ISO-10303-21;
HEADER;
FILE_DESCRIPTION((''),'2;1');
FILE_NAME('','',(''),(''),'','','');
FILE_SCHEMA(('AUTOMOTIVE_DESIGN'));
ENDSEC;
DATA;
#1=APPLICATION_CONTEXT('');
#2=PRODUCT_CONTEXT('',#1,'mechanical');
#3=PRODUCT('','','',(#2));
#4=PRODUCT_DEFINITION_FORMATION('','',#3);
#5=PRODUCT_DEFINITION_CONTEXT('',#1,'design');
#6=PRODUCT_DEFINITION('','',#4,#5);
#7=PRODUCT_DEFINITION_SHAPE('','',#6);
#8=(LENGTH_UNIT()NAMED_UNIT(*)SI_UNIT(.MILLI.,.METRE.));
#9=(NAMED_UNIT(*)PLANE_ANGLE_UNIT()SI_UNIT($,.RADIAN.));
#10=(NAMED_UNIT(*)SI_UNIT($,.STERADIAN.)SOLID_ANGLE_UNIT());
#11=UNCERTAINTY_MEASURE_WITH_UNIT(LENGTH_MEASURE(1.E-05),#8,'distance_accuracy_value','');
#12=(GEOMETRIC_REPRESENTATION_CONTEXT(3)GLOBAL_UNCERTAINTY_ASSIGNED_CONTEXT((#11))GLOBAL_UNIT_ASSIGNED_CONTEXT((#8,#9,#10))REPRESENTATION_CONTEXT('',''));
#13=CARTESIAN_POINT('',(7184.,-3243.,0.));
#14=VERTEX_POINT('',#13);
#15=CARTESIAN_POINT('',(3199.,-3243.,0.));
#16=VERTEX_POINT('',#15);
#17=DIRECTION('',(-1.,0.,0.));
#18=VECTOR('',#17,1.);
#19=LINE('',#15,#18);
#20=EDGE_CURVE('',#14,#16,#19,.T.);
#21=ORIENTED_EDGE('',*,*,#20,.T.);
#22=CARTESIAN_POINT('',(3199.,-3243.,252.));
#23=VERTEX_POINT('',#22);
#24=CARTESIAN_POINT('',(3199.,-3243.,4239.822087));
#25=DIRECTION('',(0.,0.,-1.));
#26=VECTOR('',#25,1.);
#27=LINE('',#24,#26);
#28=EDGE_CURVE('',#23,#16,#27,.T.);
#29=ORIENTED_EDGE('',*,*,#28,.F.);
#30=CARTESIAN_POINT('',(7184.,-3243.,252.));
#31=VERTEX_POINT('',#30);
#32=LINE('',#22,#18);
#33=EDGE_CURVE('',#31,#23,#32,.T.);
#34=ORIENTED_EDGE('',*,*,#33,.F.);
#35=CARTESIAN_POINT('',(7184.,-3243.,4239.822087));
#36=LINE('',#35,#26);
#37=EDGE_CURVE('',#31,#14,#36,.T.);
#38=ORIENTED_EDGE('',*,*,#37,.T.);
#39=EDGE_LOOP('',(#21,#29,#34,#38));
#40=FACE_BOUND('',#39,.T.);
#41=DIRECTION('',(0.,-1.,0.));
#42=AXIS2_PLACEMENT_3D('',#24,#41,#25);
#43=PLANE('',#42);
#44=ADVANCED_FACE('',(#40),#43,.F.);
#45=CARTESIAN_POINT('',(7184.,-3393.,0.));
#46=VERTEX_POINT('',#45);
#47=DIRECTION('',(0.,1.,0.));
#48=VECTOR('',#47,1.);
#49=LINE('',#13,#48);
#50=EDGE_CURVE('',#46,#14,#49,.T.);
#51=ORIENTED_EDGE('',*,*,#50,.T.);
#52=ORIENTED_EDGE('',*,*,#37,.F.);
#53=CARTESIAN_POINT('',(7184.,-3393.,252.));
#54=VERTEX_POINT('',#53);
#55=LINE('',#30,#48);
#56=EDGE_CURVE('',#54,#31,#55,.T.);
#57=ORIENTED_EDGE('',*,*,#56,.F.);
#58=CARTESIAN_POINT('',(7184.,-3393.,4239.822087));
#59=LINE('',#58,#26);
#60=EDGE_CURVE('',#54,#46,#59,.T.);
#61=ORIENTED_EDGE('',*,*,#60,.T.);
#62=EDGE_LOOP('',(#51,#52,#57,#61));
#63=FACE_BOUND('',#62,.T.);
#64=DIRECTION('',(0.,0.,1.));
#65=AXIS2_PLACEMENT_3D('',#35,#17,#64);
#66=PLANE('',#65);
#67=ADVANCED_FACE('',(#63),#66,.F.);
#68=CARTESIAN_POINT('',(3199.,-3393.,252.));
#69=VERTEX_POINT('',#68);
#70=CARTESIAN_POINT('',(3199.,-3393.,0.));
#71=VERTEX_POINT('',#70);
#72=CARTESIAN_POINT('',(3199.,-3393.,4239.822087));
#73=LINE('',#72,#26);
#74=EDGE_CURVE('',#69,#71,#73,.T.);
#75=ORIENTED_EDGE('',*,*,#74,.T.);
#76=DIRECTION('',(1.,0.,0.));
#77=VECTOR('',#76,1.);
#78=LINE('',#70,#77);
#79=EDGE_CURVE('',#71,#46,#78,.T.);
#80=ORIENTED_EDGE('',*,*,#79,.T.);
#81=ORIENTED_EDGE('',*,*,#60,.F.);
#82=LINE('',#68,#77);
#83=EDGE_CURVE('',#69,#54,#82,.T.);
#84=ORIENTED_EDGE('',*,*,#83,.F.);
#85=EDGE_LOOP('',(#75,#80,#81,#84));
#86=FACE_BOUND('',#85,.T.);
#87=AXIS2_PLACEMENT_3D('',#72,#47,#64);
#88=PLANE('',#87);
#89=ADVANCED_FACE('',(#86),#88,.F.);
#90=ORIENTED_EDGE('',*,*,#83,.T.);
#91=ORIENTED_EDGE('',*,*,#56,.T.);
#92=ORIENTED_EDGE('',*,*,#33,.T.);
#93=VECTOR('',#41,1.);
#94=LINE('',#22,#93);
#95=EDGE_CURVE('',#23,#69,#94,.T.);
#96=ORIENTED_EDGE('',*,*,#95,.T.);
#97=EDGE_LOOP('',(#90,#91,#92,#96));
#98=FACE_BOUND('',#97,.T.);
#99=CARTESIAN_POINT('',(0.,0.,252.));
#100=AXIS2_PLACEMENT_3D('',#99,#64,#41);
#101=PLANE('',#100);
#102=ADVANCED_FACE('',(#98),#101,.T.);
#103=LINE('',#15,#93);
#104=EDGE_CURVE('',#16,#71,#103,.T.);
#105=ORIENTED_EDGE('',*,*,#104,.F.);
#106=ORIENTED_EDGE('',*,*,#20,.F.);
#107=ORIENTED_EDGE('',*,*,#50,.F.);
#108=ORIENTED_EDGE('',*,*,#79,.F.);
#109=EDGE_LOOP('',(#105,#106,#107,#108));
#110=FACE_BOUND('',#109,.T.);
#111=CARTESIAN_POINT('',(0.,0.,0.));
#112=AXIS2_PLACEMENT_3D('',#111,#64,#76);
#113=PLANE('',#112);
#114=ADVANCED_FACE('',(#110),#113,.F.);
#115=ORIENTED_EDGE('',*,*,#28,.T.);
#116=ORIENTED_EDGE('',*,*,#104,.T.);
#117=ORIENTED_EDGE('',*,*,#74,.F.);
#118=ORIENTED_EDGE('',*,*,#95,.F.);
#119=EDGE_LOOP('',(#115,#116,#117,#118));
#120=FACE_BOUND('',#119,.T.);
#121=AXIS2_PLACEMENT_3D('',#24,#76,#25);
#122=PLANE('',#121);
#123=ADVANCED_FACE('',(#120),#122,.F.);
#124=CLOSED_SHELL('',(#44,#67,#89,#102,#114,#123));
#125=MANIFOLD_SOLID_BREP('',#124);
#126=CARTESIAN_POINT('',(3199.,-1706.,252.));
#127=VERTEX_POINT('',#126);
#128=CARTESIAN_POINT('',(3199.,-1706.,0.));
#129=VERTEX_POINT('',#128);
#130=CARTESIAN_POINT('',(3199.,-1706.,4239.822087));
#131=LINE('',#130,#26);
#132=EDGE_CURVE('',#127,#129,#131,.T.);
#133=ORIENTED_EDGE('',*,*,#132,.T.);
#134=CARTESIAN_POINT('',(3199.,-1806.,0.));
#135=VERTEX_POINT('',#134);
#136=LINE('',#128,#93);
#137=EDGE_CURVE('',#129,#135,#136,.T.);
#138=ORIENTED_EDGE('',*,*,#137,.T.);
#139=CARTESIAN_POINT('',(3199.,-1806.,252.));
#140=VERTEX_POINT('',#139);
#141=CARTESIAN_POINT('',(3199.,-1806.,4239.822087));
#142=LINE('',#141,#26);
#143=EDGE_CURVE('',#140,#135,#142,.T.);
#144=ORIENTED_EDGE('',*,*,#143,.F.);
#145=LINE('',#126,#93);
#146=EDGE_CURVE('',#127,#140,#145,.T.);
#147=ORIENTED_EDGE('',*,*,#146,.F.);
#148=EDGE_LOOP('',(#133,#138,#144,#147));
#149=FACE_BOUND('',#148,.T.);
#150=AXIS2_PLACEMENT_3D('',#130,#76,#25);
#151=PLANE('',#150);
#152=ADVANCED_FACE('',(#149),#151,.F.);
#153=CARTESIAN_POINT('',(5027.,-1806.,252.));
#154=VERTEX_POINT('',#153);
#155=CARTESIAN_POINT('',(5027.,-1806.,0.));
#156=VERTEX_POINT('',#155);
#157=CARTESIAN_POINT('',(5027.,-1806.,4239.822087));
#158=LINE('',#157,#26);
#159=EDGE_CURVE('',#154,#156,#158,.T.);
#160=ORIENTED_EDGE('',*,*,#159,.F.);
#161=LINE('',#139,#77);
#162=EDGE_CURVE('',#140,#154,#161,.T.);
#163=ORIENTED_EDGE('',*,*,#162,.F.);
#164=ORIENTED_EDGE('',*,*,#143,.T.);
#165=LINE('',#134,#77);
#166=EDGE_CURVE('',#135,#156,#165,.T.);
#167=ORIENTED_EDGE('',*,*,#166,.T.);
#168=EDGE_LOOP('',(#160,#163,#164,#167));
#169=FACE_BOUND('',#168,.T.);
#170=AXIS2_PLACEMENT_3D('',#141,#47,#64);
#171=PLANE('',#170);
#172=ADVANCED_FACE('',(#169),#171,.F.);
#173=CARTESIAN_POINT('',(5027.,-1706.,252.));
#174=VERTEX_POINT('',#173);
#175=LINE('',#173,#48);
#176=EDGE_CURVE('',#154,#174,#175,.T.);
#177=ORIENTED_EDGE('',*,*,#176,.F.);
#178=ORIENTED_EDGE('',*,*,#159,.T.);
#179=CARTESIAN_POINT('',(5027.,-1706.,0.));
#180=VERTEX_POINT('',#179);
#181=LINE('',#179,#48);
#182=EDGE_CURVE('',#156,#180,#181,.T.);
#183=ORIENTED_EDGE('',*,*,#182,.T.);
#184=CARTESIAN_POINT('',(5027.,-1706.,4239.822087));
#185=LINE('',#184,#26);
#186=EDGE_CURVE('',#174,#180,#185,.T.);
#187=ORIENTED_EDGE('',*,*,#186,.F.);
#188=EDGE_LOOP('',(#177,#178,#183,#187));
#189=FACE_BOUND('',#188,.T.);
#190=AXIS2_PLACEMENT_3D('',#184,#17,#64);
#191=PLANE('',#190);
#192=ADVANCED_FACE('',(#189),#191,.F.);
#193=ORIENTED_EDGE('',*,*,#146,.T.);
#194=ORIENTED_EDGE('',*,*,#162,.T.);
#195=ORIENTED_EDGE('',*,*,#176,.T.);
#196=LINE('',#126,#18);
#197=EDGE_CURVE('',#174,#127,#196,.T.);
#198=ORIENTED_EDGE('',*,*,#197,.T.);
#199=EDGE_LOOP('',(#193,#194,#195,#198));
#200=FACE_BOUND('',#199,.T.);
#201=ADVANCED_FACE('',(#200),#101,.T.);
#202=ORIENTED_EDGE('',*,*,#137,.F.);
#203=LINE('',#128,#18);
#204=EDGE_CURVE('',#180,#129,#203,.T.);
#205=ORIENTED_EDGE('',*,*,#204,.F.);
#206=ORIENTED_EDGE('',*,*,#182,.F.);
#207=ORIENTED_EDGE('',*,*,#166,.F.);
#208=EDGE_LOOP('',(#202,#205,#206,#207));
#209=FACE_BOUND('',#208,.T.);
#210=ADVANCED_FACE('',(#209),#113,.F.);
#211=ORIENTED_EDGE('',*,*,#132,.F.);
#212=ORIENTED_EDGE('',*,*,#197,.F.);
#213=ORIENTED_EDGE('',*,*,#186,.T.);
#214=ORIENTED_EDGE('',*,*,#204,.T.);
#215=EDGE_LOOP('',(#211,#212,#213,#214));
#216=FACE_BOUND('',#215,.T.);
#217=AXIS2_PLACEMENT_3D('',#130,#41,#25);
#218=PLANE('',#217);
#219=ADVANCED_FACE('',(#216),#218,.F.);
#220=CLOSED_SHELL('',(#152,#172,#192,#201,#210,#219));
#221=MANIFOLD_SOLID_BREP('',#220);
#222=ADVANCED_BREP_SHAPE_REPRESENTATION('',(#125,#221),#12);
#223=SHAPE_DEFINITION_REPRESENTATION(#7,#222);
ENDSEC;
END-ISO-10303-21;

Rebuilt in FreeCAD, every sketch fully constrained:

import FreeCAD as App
import Part
import Sketcher

doc = App.newDocument("Part")
body = doc.addObject("PartDesign::Body", "Body")

# Sketch on XY plane
sketch1 = body.newObject("Sketcher::SketchObject", "Sketch")
sketch1.AttachmentSupport = (doc.getObject("XY_Plane"), [""])
sketch1.MapMode = "FlatFace"
sketch1.addGeometry([
    Part.LineSegment(App.Vector(3199, -3243, 0), App.Vector(3199, -3393, 0)),
    Part.LineSegment(App.Vector(3199, -3393, 0), App.Vector(7184, -3393, 0)),
    Part.LineSegment(App.Vector(7184, -3393, 0), App.Vector(7184, -3243, 0)),
    Part.LineSegment(App.Vector(7184, -3243, 0), App.Vector(3199, -3243, 0)),
], False)
sketch1.addConstraint([
    Sketcher.Constraint("Coincident", 0, 2, 1, 1),
    Sketcher.Constraint("Coincident", 1, 2, 2, 1),
    Sketcher.Constraint("Coincident", 2, 2, 3, 1),
    Sketcher.Constraint("Coincident", 3, 2, 0, 1),
    Sketcher.Constraint("Vertical", 0),
    Sketcher.Constraint("Horizontal", 1),
    Sketcher.Constraint("Vertical", 2),
    Sketcher.Constraint("Horizontal", 3),
    Sketcher.Constraint("DistanceX", 1, 1, 1, 2, 3985.0),
    Sketcher.Constraint("DistanceY", 0, 2, 0, 1, 150.0),
    Sketcher.Constraint("DistanceX", -1, 1, 0, 2, 3199.0),
    Sketcher.Constraint("DistanceY", 0, 2, -1, 1, 3393.0),
])
pad1 = body.newObject("PartDesign::Pad", "Pad")
pad1.Profile = sketch1
pad1.Length = 252
body2 = doc.addObject("PartDesign::Body", "Body001")

# Sketch on XY plane
sketch2 = body2.newObject("Sketcher::SketchObject", "Sketch001")
sketch2.AttachmentSupport = (doc.getObject("XY_Plane001"), [""])
sketch2.MapMode = "FlatFace"
sketch2.addGeometry([
    Part.LineSegment(App.Vector(3199, -1706, 0), App.Vector(3199, -1806, 0)),
    Part.LineSegment(App.Vector(3199, -1806, 0), App.Vector(5027, -1806, 0)),
    Part.LineSegment(App.Vector(5027, -1806, 0), App.Vector(5027, -1706, 0)),
    Part.LineSegment(App.Vector(5027, -1706, 0), App.Vector(3199, -1706, 0)),
], False)
sketch2.addConstraint([
    Sketcher.Constraint("Coincident", 0, 2, 1, 1),
    Sketcher.Constraint("Coincident", 1, 2, 2, 1),
    Sketcher.Constraint("Coincident", 2, 2, 3, 1),
    Sketcher.Constraint("Coincident", 3, 2, 0, 1),
    Sketcher.Constraint("Vertical", 0),
    Sketcher.Constraint("Horizontal", 1),
    Sketcher.Constraint("Vertical", 2),
    Sketcher.Constraint("Horizontal", 3),
    Sketcher.Constraint("DistanceX", 1, 1, 1, 2, 1828.0),
    Sketcher.Constraint("DistanceY", 0, 2, 0, 1, 100.0),
    Sketcher.Constraint("DistanceX", -1, 1, 0, 2, 3199.0),
    Sketcher.Constraint("DistanceY", 0, 2, -1, 1, 1806.0),
])
pad2 = body2.newObject("PartDesign::Pad", "Pad001")
pad2.Profile = sketch2
pad2.Length = 252

doc.recompute()
